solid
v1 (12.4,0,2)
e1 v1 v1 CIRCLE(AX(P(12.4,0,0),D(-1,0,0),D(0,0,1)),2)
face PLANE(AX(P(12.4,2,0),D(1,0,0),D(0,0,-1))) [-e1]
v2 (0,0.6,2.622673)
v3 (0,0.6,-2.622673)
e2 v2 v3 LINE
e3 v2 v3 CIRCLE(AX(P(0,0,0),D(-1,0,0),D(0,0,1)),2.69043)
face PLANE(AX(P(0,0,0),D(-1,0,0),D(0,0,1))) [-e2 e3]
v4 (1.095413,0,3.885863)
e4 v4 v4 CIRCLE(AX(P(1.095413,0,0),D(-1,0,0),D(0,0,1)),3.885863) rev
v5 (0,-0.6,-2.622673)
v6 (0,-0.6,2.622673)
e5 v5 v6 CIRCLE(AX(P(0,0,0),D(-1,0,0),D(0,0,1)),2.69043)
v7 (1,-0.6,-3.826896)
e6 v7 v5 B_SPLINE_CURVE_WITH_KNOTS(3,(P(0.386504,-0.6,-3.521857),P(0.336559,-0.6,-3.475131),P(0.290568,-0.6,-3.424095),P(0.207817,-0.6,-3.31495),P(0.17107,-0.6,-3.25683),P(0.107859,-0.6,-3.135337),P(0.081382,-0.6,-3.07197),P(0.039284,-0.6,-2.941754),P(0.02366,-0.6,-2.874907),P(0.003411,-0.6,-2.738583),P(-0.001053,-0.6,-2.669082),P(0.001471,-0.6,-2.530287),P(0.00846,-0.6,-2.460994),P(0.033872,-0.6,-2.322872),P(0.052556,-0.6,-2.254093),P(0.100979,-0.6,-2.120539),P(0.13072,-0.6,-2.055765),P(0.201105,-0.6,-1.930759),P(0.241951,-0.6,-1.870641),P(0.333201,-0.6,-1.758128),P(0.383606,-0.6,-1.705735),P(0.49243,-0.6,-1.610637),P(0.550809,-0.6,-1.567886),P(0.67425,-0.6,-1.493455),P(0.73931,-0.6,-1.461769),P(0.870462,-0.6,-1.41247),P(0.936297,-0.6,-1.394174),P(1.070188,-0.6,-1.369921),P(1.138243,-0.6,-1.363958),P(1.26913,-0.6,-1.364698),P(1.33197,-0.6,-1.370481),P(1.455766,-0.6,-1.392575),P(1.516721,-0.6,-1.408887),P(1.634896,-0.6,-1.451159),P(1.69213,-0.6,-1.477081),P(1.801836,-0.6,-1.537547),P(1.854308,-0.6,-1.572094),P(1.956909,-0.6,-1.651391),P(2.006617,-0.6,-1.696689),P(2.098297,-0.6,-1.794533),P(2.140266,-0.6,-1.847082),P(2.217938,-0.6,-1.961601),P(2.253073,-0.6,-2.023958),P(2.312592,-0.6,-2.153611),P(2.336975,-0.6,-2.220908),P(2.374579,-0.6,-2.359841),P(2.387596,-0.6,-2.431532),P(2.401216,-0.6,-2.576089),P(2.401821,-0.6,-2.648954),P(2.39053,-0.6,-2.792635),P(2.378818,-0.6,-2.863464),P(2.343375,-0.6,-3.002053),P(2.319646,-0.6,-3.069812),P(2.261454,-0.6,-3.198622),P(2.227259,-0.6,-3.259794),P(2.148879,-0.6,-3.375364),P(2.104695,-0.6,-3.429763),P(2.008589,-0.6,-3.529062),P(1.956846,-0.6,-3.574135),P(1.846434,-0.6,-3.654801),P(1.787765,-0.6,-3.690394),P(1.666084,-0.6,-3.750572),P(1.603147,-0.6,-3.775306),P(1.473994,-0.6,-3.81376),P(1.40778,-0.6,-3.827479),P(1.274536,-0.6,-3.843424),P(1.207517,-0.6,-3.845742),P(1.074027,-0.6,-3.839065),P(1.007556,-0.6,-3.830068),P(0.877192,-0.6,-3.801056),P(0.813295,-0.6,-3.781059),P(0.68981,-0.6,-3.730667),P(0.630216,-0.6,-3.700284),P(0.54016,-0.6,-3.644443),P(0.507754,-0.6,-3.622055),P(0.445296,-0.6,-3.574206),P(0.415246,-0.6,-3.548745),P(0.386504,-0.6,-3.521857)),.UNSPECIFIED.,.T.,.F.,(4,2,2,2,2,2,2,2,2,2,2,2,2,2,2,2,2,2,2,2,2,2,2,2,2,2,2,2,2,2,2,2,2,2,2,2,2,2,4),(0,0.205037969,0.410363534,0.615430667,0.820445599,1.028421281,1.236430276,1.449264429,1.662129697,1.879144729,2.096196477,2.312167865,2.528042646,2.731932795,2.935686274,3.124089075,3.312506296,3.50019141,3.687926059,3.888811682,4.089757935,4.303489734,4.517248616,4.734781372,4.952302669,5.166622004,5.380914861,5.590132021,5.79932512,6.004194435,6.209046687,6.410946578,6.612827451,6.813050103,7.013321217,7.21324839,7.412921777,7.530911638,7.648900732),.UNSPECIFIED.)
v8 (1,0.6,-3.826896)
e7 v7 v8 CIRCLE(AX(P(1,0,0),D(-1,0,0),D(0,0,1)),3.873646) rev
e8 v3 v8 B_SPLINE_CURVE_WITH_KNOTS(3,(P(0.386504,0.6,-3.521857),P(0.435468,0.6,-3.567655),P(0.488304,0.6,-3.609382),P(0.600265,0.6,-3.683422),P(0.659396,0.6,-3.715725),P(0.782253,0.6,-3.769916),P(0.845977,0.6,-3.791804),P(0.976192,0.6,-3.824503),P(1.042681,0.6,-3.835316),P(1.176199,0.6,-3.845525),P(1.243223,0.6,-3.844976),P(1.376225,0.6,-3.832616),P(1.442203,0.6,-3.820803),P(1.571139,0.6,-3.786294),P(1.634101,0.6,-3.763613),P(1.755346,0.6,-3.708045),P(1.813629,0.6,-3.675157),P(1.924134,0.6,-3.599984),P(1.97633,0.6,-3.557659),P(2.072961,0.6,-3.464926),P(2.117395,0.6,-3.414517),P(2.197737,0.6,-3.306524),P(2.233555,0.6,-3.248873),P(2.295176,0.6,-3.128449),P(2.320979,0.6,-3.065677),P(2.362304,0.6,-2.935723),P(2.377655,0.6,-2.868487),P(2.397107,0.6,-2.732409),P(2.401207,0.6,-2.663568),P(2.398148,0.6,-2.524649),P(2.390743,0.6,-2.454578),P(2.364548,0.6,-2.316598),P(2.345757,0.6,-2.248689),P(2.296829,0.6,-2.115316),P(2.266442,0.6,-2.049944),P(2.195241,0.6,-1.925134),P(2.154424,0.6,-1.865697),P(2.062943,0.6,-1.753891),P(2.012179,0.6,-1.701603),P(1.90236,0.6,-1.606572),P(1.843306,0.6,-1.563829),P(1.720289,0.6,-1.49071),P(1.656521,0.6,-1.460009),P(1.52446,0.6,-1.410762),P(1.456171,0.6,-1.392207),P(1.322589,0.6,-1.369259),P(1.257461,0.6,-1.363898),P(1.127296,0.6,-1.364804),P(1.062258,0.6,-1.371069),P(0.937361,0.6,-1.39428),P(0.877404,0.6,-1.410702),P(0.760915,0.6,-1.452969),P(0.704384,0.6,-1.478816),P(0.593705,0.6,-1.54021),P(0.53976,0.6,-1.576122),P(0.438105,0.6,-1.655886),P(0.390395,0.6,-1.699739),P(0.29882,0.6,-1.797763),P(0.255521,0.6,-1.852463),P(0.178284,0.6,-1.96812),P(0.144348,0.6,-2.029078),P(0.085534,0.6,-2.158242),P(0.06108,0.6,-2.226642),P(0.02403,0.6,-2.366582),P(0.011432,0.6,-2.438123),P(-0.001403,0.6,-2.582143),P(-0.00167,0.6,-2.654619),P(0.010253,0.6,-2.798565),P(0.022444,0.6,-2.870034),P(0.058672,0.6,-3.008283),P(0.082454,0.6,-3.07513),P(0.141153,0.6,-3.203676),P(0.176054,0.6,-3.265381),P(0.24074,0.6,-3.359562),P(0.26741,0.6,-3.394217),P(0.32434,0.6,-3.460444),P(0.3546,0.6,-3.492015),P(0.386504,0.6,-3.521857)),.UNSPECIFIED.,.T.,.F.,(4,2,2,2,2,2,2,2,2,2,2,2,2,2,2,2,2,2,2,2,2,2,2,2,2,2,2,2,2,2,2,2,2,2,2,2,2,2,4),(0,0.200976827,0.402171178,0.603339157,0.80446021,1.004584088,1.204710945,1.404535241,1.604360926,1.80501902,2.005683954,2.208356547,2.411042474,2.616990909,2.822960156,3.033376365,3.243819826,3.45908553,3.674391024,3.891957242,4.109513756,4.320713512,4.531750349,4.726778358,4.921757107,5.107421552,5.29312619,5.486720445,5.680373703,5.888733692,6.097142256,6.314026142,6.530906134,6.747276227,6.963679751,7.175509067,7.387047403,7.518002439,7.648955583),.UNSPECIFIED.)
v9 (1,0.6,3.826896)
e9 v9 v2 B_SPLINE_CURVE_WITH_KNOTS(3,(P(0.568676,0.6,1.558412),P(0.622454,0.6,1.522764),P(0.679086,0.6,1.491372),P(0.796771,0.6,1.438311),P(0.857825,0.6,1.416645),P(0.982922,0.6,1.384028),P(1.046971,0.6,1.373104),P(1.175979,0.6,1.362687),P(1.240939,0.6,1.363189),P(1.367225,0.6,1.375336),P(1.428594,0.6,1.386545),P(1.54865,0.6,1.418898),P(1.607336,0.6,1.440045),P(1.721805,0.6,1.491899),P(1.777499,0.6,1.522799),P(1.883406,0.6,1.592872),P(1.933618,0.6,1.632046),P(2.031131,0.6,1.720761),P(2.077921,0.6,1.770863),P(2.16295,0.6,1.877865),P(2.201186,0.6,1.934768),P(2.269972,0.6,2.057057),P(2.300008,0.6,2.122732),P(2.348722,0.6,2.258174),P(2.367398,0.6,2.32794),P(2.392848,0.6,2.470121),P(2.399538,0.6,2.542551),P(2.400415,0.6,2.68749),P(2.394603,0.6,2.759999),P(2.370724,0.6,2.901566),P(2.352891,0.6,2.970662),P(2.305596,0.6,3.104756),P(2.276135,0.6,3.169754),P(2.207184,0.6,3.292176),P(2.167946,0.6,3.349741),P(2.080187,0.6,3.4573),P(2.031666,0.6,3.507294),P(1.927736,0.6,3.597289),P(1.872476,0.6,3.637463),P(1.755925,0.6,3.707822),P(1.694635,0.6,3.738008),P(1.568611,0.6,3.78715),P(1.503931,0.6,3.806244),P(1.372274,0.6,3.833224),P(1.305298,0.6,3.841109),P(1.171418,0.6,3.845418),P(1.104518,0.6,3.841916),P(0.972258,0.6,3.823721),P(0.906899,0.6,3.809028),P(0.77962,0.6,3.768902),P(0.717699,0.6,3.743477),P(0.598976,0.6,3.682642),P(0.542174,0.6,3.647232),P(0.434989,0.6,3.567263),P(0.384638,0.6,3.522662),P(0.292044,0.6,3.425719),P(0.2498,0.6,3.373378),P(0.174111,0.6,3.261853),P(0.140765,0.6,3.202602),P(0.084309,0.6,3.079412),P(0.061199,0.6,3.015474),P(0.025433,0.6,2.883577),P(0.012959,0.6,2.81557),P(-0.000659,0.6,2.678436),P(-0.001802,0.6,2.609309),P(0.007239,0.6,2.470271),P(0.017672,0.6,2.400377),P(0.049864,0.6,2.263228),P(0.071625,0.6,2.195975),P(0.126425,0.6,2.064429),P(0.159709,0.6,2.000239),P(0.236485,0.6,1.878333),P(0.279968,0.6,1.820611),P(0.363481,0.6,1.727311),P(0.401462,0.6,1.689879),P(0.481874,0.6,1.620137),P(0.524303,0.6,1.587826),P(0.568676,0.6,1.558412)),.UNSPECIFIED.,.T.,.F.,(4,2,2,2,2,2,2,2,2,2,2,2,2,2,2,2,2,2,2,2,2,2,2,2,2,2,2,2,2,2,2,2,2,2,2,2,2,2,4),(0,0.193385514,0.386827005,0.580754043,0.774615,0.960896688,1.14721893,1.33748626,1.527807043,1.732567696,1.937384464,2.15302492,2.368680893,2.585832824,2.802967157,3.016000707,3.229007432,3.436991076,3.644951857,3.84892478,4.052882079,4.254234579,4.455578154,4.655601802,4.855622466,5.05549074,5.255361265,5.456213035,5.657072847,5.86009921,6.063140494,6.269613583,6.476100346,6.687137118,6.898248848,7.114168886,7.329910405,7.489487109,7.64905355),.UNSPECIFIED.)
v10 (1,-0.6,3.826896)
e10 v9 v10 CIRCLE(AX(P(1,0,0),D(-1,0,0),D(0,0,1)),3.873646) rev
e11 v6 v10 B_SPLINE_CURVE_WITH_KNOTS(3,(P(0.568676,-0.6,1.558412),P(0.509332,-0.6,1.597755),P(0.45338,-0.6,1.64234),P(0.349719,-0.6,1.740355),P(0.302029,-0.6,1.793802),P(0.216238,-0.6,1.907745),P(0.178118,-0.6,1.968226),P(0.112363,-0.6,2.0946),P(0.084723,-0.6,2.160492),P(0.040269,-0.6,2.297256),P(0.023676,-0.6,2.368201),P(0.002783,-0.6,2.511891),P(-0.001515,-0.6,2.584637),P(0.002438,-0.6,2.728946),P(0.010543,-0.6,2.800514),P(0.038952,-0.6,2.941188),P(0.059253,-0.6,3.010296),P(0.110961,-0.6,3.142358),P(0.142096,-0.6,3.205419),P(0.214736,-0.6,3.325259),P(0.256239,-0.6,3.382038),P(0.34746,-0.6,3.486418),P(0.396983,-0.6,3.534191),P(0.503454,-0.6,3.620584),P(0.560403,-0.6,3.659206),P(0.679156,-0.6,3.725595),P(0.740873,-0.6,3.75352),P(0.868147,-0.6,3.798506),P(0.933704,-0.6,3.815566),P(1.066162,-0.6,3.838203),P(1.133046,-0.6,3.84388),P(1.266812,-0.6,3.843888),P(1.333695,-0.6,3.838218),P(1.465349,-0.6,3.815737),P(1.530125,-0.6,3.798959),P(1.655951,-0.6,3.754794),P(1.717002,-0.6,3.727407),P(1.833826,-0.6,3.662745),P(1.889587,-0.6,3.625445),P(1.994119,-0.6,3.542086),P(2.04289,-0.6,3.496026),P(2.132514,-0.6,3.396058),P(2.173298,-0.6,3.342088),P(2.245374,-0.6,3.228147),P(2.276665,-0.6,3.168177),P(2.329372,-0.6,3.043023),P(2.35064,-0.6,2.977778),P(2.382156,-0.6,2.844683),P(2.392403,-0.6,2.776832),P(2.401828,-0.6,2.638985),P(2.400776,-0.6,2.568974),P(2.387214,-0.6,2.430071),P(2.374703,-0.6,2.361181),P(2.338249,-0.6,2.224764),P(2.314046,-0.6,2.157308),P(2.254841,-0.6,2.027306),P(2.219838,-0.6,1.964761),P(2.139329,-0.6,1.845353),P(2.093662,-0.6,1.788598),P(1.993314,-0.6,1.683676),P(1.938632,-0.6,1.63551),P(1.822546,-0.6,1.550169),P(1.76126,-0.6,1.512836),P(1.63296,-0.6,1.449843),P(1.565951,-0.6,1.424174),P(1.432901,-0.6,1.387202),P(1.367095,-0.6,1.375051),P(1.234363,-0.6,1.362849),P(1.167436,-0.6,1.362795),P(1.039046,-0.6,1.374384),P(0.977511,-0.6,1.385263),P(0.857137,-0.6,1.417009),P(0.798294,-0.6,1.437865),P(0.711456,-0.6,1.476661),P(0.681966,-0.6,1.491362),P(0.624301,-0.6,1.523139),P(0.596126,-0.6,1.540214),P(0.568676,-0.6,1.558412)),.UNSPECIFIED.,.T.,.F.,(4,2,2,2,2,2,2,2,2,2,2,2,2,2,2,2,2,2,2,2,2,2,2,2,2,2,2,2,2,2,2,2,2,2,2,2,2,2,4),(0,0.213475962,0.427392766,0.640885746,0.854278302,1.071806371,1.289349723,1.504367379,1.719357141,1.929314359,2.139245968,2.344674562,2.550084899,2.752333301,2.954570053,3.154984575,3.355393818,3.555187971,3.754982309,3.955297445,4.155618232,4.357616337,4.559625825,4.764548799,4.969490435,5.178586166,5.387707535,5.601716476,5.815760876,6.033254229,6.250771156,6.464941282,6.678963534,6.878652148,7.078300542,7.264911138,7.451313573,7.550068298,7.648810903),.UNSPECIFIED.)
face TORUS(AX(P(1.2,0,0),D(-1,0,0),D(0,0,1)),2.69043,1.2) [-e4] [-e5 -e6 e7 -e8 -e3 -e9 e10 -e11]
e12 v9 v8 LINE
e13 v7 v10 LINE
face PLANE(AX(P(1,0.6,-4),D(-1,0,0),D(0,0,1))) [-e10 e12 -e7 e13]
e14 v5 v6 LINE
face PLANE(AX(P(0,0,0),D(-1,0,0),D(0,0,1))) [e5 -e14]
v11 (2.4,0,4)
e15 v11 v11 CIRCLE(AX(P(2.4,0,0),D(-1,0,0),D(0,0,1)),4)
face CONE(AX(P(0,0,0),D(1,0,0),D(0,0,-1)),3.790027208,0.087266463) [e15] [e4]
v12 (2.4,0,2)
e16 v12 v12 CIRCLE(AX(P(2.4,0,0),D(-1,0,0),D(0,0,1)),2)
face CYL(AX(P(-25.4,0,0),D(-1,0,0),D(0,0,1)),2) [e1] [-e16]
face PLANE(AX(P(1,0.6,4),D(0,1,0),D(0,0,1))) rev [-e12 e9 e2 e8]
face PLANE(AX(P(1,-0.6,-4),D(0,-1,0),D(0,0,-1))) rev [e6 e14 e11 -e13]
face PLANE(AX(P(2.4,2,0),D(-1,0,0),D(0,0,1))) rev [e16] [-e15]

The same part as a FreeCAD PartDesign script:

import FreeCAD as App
import Part
import Sketcher
from FreeCAD import Vector
Q = App.Units.Quantity


def edges_at(feature, points):
    """Names of the edges that pass closest to the given points."""
    edges = feature.Shape.Edges
    near = lambda p: min(range(len(edges)), key=lambda i: edges[i].distToShape(Part.Vertex(*p))[0])
    return sorted({f"Edge{near(p) + 1}" for p in points})

doc = App.newDocument("Part")
params = doc.addObject("Spreadsheet::Sheet", "Params")
for row, (alias, value) in enumerate([
    ("sketch1_width", "10 mm"),
    ("sketch1_height", "2 mm"),
    ("sketch1_width2", "12.4 mm"),
    ("revolution_angle", "360 deg"),
    ("fillet_radius", "1.2 mm"),
    ("sketch2_height", "8 mm"),
    ("sketch2_width", "1.2 mm"),
    ("pocket1_length", "1 mm"),
], start=1):
    params.set(f"A{row}", alias)
    params.set(f"B{row}", "=" + value)
    params.setAlias(f"B{row}", alias)

body = doc.addObject("PartDesign::Body", "Body")

# Sketch on XY plane
sketch1 = body.newObject("Sketcher::SketchObject", "Sketch")
sketch1.AttachmentSupport = (doc.getObject("XY_Plane"), [""])
sketch1.MapMode = "FlatFace"
sketch1.addGeometry([
    Part.LineSegment(Vector(2.4, 2, 0), Vector(2.4, 4, 0)),  # 0
    Part.LineSegment(Vector(2.4, 4, 0), Vector(0, 3.8, 0)),  # 1
    Part.LineSegment(Vector(0, 3.8, 0), Vector(0, 0, 0)),  # 2
    Part.LineSegment(Vector(0, 0, 0), Vector(12.4, 0, 0)),  # 3
    Part.LineSegment(Vector(12.4, 0, 0), Vector(12.4, 2, 0)),  # 4
    Part.LineSegment(Vector(12.4, 2, 0), Vector(2.4, 2, 0)),  # 5
], False)
sketch1.addConstraint([
    Sketcher.Constraint("Coincident", 0, 2, 1, 1),
    Sketcher.Constraint("Coincident", 1, 2, 2, 1),
    Sketcher.Constraint("Coincident", 2, 2, 3, 1),
    Sketcher.Constraint("Coincident", 3, 2, 4, 1),
    Sketcher.Constraint("Coincident", 4, 2, 5, 1),
    Sketcher.Constraint("Coincident", 5, 2, 0, 1),
    Sketcher.Constraint("Vertical", 0),
    Sketcher.Constraint("Vertical", 2),
    Sketcher.Constraint("Horizontal", 3),
    Sketcher.Constraint("Vertical", 4),
    Sketcher.Constraint("Horizontal", 5),
    Sketcher.Constraint("Coincident", 2, 2, -1, 1),
    Sketcher.Constraint("Equal", 0, 4),
    Sketcher.Constraint("DistanceX", 5, 2, 5, 1, 10.0),
    Sketcher.Constraint("DistanceY", 0, 1, 0, 2, 2.0),
    Sketcher.Constraint("Angle", 1, Q("-175 deg")),
    Sketcher.Constraint("DistanceX", 3, 1, 3, 2, 12.4),
])
sketch1.setExpression("Constraints[13]", "Params.sketch1_width")
sketch1.setExpression("Constraints[14]", "Params.sketch1_height")
sketch1.setExpression("Constraints[16]", "Params.sketch1_width2")
revolution = body.newObject("PartDesign::Revolution", "Revolution")
revolution.Profile = sketch1
revolution.ReferenceAxis = (sketch1, ["H_Axis"])
revolution.setExpression("Angle", "Params.revolution_angle")
doc.recompute()

fillet = body.newObject("PartDesign::Fillet", "Fillet")
fillet.Base = (revolution, edges_at(revolution, [(0, 0, -3.79)]))
fillet.setExpression("Radius", "Params.fillet_radius")

# Sketch on YZ plane
sketch2 = body.newObject("Sketcher::SketchObject", "Sketch001")
sketch2.AttachmentSupport = (doc.getObject("YZ_Plane"), [""])
sketch2.MapMode = "FlatFace"
sketch2.addGeometry([
    Part.LineSegment(Vector(0.6, 4, 0), Vector(-0.6, 4, 0)),
    Part.LineSegment(Vector(-0.6, 4, 0), Vector(-0.6, -4, 0)),
    Part.LineSegment(Vector(-0.6, -4, 0), Vector(0.6, -4, 0)),
    Part.LineSegment(Vector(0.6, -4, 0), Vector(0.6, 4, 0)),
], False)
sketch2.addConstraint([
    Sketcher.Constraint("Coincident", 0, 2, 1, 1),
    Sketcher.Constraint("Coincident", 1, 2, 2, 1),
    Sketcher.Constraint("Coincident", 2, 2, 3, 1),
    Sketcher.Constraint("Coincident", 3, 2, 0, 1),
    Sketcher.Constraint("Horizontal", 0),
    Sketcher.Constraint("Vertical", 1),
    Sketcher.Constraint("Horizontal", 2),
    Sketcher.Constraint("Vertical", 3),
    Sketcher.Constraint("Symmetric", 0, 2, 2, 2, -1, 1),
    Sketcher.Constraint("DistanceY", 1, 2, 1, 1, 8.0),
    Sketcher.Constraint("DistanceX", 0, 2, 0, 1, 1.2),
])
sketch2.setExpression("Constraints[9]", "Params.sketch2_height")
sketch2.setExpression("Constraints[10]", "Params.sketch2_width")
pocket1 = body.newObject("PartDesign::Pocket", "Pocket")
pocket1.Profile = sketch2
pocket1.setExpression("Length", "Params.pocket1_length")
pocket1.Reversed = True

doc.recompute()
